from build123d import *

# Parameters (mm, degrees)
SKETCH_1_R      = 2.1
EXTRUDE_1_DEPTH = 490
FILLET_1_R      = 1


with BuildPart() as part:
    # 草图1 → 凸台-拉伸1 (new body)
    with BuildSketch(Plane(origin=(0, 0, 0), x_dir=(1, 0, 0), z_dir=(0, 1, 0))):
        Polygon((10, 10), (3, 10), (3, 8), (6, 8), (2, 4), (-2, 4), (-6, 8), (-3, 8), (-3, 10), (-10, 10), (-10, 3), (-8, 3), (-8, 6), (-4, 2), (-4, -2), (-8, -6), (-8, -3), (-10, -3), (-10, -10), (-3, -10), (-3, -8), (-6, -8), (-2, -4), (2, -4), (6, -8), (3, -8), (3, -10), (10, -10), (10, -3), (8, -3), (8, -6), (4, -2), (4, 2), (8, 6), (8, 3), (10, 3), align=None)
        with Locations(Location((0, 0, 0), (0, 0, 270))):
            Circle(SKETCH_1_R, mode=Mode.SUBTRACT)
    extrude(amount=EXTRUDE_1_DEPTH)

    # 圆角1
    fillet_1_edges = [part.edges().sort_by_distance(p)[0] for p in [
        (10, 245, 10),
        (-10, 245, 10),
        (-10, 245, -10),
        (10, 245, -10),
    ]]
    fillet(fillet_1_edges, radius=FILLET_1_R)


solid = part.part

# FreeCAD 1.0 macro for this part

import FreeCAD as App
import Part
import Sketcher


def edges_at(feature, points):
    """Names of the edges that pass closest to the given points."""
    edges = feature.Shape.Edges
    near = lambda p: min(range(len(edges)), key=lambda i: edges[i].distToShape(Part.Vertex(*p))[0])
    return sorted({f"Edge{near(p) + 1}" for p in points})


def add_polygon(sketch, points):
    """Adds a closed chain of lines whose ends are joined by coincident constraints."""
    first, n = sketch.GeometryCount, len(points)
    for a, b in zip(points, points[1:] + points[:1]):
        sketch.addGeometry(Part.LineSegment(App.Vector(*a, 0), App.Vector(*b, 0)), False)
    for i in range(n):
        sketch.addConstraint(Sketcher.Constraint("Coincident", first + i, 2, first + (i + 1) % n, 1))

doc = App.newDocument("Part")
body = doc.addObject("PartDesign::Body", "Body")

# Sketch on XZ plane
sketch1 = doc.addObject("Sketcher::SketchObject", "Sketch")
body.addObject(sketch1)
sketch1.AttachmentSupport = (doc.XZ_Plane, [""])
sketch1.MapMode = "FlatFace"
add_polygon(sketch1, [(10, -10), (3, -10), (3, -8), (6, -8), (2, -4), (-2, -4), (-6, -8), (-3, -8), (-3, -10), (-10, -10), (-10, -3), (-8, -3), (-8, -6), (-4, -2), (-4, 2), (-8, 6), (-8, 3), (-10, 3), (-10, 10), (-3, 10), (-3, 8), (-6, 8), (-2, 4), (2, 4), (6, 8), (3, 8), (3, 10), (10, 10), (10, 3), (8, 3), (8, 6), (4, 2), (4, -2), (8, -6), (8, -3), (10, -3)])  # lines 0-35
sketch1.addGeometry(Part.Circle(App.Vector(0, 0, 0), App.Vector(0, 0, 1), 2.1), False)  # 36
sketch1.addConstraint([
    Sketcher.Constraint("Horizontal", 0),
    Sketcher.Constraint("Vertical", 1),
    Sketcher.Constraint("Horizontal", 2),
    Sketcher.Constraint("Horizontal", 4),
    Sketcher.Constraint("Horizontal", 6),
    Sketcher.Constraint("Vertical", 7),
    Sketcher.Constraint("Horizontal", 8),
    Sketcher.Constraint("Vertical", 9),
    Sketcher.Constraint("Horizontal", 10),
    Sketcher.Constraint("Vertical", 11),
    Sketcher.Constraint("Vertical", 13),
    Sketcher.Constraint("Vertical", 15),
    Sketcher.Constraint("Horizontal", 16),
    Sketcher.Constraint("Vertical", 17),
    Sketcher.Constraint("Horizontal", 18),
    Sketcher.Constraint("Vertical", 19),
    Sketcher.Constraint("Horizontal", 20),
    Sketcher.Constraint("Horizontal", 22),
    Sketcher.Constraint("Horizontal", 24),
    Sketcher.Constraint("Vertical", 25),
    Sketcher.Constraint("Horizontal", 26),
    Sketcher.Constraint("Vertical", 27),
    Sketcher.Constraint("Horizontal", 28),
    Sketcher.Constraint("Vertical", 29),
    Sketcher.Constraint("Vertical", 31),
    Sketcher.Constraint("Vertical", 33),
    Sketcher.Constraint("Horizontal", 34),
    Sketcher.Constraint("Vertical", 35),
    Sketcher.Constraint("Coincident", 36, 3, -1, 1),
    Sketcher.Constraint("Symmetric", 0, 2, 18, 2, -1, 1),
    Sketcher.Constraint("Symmetric", 2, 2, 20, 2, -1, 1),
    Sketcher.Constraint("Symmetric", 3, 2, 21, 2, -1, 1),
    Sketcher.Constraint("Symmetric", 5, 2, 23, 2, -1, 1),
    Sketcher.Constraint("Symmetric", 7, 2, 25, 2, -1, 1),
    Sketcher.Constraint("Symmetric", 9, 2, 27, 2, -1, 1),
    Sketcher.Constraint("Symmetric", 11, 2, 29, 2, -1, 1),
    Sketcher.Constraint("Symmetric", 12, 2, 30, 2, -1, 1),
    Sketcher.Constraint("Symmetric", 14, 2, 32, 2, -1, 1),
    Sketcher.Constraint("Symmetric", 16, 2, 34, 2, -1, 1),
    Sketcher.Constraint("Symmetric", 2, 2, 5, 2, -2),
    Sketcher.Constraint("Symmetric", 0, 2, 7, 2, -2),
    Sketcher.Constraint("Symmetric", 16, 2, 27, 2, -2),
    Sketcher.Constraint("Symmetric", 14, 2, 29, 2, -2),
    Sketcher.Constraint("Perpendicular", 3, 5),
    Sketcher.Constraint("Parallel", 5, 12),
    Sketcher.Constraint("Perpendicular", 12, 14),
    Sketcher.Constraint("Perpendicular", 21, 23),
    Sketcher.Constraint("Perpendicular", 30, 32),
    Sketcher.Constraint("Horizontal", 13, 2, 30, 2),
    Sketcher.Constraint("Equal", 34, 1),
    Sketcher.Constraint("Equal", 26, 9),
    Sketcher.Constraint("Equal", 24, 11),
    Sketcher.Constraint("Equal", 22, 13),
    Sketcher.Constraint("Equal", 5, 12),
    Sketcher.Constraint("Diameter", 36, 4.2),
    Sketcher.Constraint("DistanceX", 0, 2, 0, 1, 7.0),
    Sketcher.Constraint("DistanceX", 2, 1, 2, 2, 3.0),
    Sketcher.Constraint("DistanceX", 4, 2, 4, 1, 4.0),
    Sketcher.Constraint("DistanceX", 10, 1, 10, 2, 2.0),
    Sketcher.Constraint("DistanceX", -1, 1, 0, 2, 3.0),
])
pad1 = doc.addObject("PartDesign::Pad", "Pad")
body.addObject(pad1)
pad1.Profile = sketch1
pad1.Length = 490
pad1.Reversed = True
doc.recompute()

fillet = doc.addObject("PartDesign::Fillet", "Fillet")
body.addObject(fillet)
fillet.Base = (pad1, edges_at(pad1, [
    (10, 245, 10),
    (-10, 245, 10),
    (-10, 245, -10),
    (10, 245, -10),
]))
fillet.Radius = 1

doc.recompute()
